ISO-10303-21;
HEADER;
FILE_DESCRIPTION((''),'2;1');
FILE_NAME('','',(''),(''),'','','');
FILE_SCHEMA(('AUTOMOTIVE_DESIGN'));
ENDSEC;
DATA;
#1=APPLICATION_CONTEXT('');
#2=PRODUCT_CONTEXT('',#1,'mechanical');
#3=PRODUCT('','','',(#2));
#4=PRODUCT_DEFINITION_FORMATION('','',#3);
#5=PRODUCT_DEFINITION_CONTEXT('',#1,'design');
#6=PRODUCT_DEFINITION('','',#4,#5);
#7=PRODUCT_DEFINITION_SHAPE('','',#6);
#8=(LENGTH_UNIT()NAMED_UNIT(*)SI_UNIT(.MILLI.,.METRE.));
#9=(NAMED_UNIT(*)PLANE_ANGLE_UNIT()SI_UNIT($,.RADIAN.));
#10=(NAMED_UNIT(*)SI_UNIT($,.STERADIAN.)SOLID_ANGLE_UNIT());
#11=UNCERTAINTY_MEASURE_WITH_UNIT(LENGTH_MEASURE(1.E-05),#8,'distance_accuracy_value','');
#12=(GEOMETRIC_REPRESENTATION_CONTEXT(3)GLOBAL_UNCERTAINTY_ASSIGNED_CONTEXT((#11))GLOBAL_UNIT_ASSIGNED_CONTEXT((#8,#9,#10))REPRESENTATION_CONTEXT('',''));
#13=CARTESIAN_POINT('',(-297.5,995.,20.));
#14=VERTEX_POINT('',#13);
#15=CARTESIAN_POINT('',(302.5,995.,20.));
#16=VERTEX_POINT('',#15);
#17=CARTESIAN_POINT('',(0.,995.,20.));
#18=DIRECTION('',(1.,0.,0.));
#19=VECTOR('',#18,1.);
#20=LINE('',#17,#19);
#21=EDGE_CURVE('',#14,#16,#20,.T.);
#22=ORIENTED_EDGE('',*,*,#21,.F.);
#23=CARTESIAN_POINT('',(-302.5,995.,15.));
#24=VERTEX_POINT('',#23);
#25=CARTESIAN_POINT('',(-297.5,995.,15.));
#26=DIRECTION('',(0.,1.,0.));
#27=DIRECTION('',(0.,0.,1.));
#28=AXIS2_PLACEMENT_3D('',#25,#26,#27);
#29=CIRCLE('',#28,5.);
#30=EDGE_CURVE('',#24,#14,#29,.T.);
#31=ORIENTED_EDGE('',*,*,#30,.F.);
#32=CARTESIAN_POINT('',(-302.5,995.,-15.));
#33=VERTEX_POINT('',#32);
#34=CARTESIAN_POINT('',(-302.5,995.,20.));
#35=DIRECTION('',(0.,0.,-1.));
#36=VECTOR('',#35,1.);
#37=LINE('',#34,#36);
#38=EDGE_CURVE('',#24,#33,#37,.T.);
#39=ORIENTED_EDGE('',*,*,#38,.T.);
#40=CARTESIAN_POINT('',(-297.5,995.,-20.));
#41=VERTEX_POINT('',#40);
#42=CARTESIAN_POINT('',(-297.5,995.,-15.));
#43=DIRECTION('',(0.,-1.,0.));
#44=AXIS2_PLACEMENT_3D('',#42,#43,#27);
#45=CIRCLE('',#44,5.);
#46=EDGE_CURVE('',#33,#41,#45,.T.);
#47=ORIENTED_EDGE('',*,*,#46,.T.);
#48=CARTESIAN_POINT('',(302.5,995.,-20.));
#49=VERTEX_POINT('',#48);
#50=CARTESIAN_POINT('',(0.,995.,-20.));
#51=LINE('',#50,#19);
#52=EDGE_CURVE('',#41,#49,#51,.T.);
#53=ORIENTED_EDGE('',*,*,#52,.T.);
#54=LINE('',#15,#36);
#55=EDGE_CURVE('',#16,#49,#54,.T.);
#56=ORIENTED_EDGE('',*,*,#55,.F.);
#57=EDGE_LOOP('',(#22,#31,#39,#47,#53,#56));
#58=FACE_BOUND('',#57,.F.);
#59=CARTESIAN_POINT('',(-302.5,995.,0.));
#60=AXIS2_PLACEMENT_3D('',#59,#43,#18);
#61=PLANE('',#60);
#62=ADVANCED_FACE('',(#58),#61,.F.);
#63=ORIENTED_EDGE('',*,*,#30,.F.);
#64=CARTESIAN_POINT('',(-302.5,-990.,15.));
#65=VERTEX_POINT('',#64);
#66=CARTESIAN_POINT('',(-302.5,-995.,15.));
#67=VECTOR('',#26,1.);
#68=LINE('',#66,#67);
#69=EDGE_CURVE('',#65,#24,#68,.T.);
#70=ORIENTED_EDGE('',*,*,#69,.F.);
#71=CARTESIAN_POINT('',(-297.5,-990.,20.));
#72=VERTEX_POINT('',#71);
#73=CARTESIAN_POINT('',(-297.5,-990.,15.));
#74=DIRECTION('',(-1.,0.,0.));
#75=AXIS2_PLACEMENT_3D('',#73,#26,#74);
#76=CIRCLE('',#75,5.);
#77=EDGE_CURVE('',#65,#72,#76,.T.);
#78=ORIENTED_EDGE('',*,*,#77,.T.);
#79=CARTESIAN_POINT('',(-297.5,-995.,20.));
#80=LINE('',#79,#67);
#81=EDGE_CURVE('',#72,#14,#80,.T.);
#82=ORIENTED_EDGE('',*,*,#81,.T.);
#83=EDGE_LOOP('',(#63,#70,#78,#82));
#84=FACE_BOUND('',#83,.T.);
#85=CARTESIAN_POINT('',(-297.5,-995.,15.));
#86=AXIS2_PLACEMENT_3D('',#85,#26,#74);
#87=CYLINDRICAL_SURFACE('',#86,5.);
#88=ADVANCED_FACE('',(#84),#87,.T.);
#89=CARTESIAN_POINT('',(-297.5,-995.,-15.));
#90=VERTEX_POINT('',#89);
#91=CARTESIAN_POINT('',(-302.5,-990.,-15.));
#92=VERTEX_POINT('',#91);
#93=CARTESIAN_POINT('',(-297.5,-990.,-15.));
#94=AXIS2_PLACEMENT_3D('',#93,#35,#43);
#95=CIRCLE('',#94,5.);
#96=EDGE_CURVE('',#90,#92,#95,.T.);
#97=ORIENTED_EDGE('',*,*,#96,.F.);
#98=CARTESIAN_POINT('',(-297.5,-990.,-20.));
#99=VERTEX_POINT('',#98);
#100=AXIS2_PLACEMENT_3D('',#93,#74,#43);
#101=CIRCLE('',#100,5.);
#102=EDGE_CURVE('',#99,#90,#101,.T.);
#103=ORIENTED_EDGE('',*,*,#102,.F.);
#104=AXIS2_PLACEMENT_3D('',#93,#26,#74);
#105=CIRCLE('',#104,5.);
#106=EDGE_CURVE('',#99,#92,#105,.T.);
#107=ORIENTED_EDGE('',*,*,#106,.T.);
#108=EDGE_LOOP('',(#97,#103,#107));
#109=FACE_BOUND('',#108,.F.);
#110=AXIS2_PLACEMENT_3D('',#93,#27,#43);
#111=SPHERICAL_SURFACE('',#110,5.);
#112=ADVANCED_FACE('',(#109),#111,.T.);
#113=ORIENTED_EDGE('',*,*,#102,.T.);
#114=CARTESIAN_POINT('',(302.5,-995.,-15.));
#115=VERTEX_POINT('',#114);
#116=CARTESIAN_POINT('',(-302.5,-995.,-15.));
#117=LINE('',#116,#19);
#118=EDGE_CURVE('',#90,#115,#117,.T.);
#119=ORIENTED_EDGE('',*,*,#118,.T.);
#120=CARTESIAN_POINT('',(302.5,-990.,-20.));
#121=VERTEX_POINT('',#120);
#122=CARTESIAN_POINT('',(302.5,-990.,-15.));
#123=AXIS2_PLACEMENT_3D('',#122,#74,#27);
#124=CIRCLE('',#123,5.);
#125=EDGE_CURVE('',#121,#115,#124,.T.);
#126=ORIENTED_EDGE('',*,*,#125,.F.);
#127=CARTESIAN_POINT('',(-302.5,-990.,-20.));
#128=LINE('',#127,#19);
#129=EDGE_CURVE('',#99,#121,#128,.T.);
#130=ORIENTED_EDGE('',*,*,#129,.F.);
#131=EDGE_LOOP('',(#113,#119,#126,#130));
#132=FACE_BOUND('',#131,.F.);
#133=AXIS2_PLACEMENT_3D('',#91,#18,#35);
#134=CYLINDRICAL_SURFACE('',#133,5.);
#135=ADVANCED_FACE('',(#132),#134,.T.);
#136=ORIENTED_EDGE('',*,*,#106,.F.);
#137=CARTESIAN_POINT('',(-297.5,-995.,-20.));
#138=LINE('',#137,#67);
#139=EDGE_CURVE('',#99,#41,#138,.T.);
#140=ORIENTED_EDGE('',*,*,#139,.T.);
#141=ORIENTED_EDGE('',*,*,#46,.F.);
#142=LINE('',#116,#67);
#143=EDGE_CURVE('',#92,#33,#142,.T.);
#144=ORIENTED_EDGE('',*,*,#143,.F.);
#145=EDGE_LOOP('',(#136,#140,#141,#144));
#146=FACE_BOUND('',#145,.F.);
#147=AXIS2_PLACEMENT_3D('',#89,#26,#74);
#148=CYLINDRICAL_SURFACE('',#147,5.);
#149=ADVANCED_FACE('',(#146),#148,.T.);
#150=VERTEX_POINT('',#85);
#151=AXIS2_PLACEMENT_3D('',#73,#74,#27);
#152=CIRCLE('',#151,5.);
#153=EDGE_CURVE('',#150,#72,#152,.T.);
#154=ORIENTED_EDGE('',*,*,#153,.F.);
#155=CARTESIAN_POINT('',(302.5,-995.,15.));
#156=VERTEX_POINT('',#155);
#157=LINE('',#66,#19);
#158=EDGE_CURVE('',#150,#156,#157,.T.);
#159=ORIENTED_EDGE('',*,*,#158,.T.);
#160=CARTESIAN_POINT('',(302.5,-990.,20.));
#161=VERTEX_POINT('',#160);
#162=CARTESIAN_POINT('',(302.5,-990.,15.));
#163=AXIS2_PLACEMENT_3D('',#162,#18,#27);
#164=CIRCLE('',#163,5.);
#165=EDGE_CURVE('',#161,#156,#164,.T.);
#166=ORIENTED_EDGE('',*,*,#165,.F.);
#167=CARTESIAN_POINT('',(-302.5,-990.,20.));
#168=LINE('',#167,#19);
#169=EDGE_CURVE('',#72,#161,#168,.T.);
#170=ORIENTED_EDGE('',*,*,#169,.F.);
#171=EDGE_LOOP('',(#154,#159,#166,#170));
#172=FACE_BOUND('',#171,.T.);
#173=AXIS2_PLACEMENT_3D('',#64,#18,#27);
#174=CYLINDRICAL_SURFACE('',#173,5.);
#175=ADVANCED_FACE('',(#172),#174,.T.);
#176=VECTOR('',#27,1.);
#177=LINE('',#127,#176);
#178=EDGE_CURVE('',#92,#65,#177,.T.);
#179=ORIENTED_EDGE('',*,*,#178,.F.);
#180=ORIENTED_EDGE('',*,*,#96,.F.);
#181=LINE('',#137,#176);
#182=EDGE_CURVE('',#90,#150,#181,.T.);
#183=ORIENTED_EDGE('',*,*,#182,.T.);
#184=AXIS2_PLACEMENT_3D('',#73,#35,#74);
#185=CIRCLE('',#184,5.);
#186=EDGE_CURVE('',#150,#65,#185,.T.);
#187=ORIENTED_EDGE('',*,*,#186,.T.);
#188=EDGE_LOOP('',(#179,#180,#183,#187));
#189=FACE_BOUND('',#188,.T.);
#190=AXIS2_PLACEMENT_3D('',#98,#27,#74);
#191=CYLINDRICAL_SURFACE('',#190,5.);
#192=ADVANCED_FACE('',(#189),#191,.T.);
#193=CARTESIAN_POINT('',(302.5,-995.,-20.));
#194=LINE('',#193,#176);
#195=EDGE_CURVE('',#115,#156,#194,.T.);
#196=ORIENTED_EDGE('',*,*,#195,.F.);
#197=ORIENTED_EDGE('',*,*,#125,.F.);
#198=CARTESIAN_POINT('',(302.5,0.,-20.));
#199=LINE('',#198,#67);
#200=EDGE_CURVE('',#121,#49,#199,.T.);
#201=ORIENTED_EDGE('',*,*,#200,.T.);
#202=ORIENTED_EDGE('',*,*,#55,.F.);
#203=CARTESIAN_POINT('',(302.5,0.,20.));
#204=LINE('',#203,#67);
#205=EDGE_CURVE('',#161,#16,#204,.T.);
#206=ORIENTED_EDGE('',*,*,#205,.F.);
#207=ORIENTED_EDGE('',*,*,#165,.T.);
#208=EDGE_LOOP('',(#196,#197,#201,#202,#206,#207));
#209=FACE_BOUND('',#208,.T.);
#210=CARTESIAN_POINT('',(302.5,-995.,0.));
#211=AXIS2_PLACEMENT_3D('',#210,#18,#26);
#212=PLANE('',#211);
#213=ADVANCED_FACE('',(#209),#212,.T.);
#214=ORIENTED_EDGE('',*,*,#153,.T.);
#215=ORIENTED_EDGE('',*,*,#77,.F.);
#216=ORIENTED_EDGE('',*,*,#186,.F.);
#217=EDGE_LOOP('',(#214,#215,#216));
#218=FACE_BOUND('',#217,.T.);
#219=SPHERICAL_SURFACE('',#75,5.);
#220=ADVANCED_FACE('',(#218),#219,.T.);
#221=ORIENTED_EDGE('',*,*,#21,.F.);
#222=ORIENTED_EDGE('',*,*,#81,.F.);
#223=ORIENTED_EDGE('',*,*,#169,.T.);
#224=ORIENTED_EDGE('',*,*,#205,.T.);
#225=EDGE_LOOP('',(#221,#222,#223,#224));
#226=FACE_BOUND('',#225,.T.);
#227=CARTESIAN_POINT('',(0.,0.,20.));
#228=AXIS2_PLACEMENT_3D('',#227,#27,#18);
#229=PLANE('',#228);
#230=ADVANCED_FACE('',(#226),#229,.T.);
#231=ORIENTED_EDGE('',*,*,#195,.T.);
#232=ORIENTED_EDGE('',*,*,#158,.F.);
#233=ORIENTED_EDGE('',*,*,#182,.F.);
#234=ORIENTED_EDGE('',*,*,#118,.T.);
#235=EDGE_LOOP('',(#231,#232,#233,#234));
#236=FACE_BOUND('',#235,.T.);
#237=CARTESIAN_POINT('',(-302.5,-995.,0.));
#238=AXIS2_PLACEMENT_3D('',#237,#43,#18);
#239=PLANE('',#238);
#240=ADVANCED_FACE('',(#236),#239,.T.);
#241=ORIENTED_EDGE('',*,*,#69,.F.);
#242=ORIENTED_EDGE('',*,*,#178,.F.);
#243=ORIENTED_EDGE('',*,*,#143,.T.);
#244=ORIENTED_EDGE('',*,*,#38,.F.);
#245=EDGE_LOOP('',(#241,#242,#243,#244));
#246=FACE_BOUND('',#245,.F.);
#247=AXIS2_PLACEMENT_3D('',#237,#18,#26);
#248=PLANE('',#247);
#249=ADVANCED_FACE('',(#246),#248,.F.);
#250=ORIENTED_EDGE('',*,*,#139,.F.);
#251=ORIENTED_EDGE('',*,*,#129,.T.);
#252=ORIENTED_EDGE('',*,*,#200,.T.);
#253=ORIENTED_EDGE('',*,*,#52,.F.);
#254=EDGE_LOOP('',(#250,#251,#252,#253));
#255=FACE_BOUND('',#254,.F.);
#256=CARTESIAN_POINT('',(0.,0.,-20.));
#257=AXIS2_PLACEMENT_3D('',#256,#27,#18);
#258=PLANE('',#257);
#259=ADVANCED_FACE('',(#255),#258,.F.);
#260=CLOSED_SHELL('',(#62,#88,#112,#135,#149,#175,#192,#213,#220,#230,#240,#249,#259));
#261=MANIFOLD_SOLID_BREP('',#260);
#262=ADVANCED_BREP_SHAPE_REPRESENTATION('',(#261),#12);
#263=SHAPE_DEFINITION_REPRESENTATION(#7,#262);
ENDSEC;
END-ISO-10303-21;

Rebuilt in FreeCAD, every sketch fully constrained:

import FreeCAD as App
import Part
import Sketcher


def edges_at(feature, points):
    """Names of the edges that pass closest to the given points."""
    edges = feature.Shape.Edges
    near = lambda p: min(range(len(edges)), key=lambda i: edges[i].distToShape(Part.Vertex(*p))[0])
    return sorted({f"Edge{near(p) + 1}" for p in points})

doc = App.newDocument("Part")
body = doc.addObject("PartDesign::Body", "Body")

sketch1 = body.newObject("Sketcher::SketchObject", "Sketch")
sketch1.AttachmentSupport = (doc.getObject("XY_Plane"), [""])
sketch1.MapMode = "FlatFace"
sketch1.addGeometry([
    Part.LineSegment(App.Vector(-302, 995, 0), App.Vector(-302, -995, 0)),
    Part.LineSegment(App.Vector(-302, -995, 0), App.Vector(302, -995, 0)),
    Part.LineSegment(App.Vector(302, -995, 0), App.Vector(302, 995, 0)),
    Part.LineSegment(App.Vector(302, 995, 0), App.Vector(-302, 995, 0)),
], False)
sketch1.addConstraint([
    Sketcher.Constraint("Coincident", 0, 2, 1, 1),
    Sketcher.Constraint("Coincident", 1, 2, 2, 1),
    Sketcher.Constraint("Coincident", 2, 2, 3, 1),
    Sketcher.Constraint("Coincident", 3, 2, 0, 1),
    Sketcher.Constraint("Vertical", 0),
    Sketcher.Constraint("Horizontal", 1),
    Sketcher.Constraint("Vertical", 2),
    Sketcher.Constraint("Horizontal", 3),
    Sketcher.Constraint("Symmetric", 0, 2, 2, 2, -1, 1),
    Sketcher.Constraint("DistanceX", 1, 1, 1, 2, 605.0),
    Sketcher.Constraint("DistanceY", 0, 2, 0, 1, 1990.0),
])
pad1 = body.newObject("PartDesign::Pad", "Pad")
pad1.Profile = sketch1
pad1.Length = 40
pad1.Midplane = True
doc.recompute()

fillet = body.newObject("PartDesign::Fillet", "Fillet")
fillet.Base = (pad1, edges_at(pad1, [
    (-302.5, 0, 20),
    (-302.5, -995, 0),
    (0, -995, 20),
    (0, -995, -20),
    (-302.5, 0, -20),
]))
fillet.Radius = 5

doc.recompute()
